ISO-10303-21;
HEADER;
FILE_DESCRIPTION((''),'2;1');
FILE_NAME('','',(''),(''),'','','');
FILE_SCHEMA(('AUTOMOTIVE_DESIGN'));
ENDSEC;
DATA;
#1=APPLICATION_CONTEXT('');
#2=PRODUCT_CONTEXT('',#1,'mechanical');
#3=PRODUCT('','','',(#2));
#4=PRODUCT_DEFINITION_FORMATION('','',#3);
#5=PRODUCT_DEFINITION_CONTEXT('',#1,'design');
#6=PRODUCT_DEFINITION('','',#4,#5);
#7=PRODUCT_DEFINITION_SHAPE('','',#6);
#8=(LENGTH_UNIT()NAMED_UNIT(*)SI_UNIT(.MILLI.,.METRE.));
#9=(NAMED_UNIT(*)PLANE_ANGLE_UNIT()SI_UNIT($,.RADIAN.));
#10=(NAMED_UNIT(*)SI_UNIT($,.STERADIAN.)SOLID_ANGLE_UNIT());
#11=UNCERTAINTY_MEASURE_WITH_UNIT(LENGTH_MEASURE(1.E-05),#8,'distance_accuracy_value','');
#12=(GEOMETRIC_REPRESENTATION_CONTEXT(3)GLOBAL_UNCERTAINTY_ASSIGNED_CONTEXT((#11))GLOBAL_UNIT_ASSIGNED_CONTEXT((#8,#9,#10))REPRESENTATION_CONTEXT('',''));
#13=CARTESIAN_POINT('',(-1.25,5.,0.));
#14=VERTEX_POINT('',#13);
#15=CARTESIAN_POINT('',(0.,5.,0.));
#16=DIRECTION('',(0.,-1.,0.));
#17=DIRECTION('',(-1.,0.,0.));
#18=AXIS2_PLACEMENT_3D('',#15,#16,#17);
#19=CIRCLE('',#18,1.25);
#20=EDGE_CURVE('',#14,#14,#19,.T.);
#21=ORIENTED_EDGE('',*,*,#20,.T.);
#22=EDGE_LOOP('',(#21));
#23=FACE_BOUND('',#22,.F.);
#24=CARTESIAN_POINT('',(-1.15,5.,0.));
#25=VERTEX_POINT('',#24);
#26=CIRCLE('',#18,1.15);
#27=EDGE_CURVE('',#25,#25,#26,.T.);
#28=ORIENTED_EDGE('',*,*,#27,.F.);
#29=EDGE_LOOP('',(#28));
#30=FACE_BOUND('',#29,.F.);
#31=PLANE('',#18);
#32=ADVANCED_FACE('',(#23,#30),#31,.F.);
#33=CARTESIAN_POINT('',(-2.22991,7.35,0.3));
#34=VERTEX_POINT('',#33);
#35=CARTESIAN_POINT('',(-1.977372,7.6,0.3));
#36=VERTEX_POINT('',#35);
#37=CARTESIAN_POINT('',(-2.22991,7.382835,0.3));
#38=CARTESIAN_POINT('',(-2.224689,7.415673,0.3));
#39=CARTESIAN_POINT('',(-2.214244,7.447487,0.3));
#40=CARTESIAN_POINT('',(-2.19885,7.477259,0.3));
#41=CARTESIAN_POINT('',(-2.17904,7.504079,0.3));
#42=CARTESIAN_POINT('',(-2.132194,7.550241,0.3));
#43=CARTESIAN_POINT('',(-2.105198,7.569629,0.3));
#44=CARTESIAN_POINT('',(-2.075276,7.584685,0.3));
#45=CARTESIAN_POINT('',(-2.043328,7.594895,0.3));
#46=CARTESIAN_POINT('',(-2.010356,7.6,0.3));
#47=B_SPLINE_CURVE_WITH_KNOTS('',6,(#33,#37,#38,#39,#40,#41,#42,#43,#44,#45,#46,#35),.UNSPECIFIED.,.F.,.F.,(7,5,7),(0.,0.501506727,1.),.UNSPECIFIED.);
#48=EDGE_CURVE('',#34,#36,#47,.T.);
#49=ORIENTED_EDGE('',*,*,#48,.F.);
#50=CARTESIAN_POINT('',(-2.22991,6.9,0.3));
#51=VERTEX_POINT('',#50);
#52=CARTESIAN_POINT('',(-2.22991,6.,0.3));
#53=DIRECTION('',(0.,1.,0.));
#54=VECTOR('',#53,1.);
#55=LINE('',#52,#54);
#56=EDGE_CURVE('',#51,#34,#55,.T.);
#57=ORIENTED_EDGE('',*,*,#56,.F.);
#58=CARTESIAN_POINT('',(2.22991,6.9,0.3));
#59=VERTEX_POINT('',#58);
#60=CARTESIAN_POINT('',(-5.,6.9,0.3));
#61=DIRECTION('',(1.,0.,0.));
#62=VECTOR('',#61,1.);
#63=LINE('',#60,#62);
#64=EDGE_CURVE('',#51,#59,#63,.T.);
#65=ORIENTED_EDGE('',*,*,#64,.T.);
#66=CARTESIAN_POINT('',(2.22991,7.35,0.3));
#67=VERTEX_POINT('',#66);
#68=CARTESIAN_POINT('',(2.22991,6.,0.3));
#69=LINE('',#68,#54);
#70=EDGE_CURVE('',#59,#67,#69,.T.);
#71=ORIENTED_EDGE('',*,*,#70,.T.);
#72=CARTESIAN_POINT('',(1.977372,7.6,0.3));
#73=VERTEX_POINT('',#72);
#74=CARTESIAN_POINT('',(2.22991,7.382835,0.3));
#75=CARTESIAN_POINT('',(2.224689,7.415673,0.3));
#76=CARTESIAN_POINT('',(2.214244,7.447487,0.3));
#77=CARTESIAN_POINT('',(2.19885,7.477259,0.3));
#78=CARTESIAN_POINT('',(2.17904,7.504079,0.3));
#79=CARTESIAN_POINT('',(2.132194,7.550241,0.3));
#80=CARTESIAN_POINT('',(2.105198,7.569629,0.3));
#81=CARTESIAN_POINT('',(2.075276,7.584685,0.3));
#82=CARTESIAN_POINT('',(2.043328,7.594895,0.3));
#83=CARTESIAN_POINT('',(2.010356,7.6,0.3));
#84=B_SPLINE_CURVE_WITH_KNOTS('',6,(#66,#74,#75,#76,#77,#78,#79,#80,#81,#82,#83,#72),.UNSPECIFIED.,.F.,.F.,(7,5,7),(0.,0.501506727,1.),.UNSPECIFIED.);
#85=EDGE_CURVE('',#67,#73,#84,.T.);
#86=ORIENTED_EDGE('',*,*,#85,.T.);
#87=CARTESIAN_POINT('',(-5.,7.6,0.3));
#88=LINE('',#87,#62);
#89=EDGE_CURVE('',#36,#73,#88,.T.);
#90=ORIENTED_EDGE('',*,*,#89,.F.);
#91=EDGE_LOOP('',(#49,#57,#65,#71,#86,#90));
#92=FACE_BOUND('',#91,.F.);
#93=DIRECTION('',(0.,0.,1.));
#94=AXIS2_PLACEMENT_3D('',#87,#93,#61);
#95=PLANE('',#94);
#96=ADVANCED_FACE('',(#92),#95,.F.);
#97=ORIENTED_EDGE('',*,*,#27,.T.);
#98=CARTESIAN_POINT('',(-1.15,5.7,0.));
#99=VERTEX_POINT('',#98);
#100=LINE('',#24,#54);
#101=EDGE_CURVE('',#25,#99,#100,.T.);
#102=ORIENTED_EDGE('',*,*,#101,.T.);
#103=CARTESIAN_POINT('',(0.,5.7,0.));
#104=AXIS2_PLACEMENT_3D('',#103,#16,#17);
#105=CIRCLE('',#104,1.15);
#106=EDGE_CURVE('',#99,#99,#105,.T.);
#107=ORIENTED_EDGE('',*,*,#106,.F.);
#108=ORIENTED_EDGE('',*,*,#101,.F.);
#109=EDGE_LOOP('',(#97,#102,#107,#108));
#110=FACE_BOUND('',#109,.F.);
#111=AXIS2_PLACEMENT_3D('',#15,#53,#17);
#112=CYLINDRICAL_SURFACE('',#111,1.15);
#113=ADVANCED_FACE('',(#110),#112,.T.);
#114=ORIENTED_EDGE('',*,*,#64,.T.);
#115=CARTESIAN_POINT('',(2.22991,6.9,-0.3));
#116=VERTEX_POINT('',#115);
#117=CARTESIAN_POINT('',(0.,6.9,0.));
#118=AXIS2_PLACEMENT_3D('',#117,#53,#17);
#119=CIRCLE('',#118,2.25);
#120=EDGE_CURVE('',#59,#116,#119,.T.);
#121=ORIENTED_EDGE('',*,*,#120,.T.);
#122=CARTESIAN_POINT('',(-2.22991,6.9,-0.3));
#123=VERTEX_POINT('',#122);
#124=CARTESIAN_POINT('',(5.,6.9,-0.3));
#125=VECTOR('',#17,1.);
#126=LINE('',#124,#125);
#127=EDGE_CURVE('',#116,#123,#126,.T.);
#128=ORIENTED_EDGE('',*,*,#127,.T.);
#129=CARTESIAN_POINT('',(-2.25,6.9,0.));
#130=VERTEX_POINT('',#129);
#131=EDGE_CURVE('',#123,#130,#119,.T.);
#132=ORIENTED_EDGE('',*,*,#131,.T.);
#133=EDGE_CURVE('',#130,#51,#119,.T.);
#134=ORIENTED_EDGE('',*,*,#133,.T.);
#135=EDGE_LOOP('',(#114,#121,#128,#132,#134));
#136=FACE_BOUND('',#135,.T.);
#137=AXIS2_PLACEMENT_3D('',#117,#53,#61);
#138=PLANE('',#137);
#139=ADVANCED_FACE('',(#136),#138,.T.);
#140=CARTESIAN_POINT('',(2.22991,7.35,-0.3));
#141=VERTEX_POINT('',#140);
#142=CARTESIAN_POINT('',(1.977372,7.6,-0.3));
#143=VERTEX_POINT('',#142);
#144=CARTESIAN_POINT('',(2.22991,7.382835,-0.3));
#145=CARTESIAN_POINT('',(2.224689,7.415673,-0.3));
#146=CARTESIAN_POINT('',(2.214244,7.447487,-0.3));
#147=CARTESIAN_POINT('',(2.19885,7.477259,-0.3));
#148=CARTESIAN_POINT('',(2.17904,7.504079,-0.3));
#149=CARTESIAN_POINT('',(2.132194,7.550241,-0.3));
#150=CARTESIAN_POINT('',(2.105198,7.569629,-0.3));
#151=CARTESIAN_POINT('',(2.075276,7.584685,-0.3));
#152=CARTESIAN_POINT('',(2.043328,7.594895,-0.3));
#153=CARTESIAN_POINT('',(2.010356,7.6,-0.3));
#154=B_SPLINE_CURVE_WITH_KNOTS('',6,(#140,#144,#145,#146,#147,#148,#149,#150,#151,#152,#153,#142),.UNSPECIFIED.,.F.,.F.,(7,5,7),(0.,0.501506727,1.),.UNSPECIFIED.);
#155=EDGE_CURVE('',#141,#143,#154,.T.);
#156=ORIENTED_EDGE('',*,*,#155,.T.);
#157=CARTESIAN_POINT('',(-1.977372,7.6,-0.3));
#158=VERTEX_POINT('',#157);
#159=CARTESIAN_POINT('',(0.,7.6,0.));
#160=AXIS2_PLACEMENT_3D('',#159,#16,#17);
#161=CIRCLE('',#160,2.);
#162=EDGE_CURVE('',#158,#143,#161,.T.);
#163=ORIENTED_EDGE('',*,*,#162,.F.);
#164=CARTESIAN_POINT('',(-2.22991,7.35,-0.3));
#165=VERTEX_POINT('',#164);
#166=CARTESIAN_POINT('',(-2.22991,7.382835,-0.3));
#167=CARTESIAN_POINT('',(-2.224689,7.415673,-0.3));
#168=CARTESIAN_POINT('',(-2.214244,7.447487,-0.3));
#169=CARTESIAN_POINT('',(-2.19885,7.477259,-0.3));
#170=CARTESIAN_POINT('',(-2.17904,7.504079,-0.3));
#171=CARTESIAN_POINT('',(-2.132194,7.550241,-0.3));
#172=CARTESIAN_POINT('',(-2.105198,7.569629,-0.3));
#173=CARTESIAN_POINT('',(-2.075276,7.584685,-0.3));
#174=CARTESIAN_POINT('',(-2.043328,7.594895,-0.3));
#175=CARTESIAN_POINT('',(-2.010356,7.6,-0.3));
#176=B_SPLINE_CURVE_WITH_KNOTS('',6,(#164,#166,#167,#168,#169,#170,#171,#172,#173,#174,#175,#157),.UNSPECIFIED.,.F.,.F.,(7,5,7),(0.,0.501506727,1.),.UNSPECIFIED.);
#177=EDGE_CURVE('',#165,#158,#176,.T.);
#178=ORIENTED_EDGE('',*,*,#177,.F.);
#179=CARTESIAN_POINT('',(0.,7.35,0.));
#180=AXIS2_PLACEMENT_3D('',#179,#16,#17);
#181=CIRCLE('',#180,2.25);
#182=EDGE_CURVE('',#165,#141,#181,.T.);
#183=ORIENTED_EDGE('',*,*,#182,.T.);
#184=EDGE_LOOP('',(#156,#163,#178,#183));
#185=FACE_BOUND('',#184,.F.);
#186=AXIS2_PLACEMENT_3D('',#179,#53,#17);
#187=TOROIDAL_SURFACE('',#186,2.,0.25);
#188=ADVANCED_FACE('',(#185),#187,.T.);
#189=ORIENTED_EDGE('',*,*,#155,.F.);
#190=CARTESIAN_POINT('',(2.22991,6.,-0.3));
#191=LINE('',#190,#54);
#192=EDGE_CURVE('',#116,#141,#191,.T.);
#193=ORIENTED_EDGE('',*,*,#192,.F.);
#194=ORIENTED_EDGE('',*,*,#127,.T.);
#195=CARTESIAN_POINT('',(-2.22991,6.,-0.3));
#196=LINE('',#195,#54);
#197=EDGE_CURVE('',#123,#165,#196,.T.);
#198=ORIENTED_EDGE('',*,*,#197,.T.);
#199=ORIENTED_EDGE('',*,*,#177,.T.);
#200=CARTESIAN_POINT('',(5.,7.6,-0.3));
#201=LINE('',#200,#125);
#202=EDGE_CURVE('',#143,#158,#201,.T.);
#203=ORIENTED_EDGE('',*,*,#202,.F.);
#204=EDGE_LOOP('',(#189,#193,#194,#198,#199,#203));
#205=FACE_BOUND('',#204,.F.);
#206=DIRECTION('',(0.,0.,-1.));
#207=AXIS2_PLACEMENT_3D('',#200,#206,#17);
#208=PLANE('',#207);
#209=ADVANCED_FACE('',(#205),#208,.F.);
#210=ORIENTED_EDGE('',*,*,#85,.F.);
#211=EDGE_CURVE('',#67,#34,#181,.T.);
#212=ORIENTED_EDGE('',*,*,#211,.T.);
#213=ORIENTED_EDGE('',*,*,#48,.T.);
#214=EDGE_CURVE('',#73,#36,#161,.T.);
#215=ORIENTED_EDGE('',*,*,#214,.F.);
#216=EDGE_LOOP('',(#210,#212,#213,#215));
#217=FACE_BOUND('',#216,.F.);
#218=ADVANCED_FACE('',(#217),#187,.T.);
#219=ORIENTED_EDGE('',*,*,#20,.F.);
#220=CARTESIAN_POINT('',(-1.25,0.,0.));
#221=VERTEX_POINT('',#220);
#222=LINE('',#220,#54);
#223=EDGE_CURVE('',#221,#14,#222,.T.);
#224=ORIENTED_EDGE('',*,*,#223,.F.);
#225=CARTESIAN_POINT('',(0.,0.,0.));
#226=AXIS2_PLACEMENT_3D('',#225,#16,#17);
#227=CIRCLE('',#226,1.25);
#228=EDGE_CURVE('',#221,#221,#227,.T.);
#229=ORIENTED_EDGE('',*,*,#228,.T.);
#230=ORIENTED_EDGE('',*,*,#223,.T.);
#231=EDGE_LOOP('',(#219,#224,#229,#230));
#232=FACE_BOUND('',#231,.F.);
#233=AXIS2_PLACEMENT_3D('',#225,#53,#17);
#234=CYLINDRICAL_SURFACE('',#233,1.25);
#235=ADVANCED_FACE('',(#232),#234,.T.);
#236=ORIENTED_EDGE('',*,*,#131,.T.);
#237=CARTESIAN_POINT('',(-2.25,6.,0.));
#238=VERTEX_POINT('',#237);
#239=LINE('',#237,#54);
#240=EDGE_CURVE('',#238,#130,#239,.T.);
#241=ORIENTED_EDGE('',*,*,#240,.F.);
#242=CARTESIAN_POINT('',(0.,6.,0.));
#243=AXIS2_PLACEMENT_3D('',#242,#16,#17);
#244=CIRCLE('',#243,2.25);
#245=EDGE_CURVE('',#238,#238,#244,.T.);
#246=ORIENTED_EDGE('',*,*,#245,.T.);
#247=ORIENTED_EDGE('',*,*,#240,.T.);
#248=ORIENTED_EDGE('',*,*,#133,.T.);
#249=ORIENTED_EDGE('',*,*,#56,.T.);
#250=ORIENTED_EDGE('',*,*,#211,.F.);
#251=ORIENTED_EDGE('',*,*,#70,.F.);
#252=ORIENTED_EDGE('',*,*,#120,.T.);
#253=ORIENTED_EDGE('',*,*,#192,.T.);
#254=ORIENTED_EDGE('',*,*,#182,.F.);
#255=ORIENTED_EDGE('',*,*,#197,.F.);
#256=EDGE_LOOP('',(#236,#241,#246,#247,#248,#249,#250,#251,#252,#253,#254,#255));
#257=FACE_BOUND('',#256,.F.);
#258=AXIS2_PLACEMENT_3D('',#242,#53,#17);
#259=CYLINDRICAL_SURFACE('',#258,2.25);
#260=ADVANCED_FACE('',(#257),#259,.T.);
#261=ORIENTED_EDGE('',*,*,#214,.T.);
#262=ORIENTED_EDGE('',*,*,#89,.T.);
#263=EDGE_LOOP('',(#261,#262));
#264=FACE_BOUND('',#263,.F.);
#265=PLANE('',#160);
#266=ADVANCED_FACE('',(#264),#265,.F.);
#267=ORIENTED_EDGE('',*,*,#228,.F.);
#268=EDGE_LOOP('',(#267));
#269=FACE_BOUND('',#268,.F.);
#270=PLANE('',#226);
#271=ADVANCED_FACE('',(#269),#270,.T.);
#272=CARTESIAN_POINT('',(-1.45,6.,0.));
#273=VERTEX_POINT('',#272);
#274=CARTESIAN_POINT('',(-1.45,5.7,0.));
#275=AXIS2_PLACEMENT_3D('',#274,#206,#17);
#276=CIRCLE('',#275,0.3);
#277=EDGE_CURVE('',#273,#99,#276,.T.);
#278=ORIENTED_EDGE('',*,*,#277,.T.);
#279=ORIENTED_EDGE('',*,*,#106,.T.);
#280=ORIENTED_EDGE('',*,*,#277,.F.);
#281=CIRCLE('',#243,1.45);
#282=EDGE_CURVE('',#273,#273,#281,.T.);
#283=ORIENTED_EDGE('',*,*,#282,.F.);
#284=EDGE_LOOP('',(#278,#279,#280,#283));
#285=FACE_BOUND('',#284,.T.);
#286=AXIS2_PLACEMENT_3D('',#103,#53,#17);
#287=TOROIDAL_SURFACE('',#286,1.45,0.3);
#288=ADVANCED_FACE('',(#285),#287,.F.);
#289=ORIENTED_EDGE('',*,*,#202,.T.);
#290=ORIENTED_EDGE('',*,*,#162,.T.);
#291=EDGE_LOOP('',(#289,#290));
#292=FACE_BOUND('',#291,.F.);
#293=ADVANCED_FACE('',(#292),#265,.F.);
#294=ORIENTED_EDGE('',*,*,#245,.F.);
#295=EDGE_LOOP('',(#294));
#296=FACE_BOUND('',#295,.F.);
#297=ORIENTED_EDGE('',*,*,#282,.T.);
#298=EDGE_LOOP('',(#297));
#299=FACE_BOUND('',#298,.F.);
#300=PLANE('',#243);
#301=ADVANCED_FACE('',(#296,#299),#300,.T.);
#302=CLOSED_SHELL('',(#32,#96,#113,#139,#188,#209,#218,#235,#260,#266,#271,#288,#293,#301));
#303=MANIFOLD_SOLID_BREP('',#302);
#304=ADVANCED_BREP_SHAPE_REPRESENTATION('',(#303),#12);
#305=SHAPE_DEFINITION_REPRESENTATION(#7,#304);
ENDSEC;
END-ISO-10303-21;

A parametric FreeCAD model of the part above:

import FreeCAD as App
import Part
import Sketcher
from FreeCAD import Vector


def edges_at(feature, points):
    """Names of the edges that pass closest to the given points."""
    edges = feature.Shape.Edges
    near = lambda p: min(range(len(edges)), key=lambda i: edges[i].distToShape(Part.Vertex(*p))[0])
    return sorted({f"Edge{near(p) + 1}" for p in points})

doc = App.newDocument("Part")
params = doc.addObject("Spreadsheet::Sheet", "Params")
for row, (alias, value) in enumerate([
    ("sketch1_height", "1 mm"),
    ("sketch1_width", "0.1 mm"),
    ("sketch1_height2", "7.6 mm"),
    ("sketch1_height3", "1.6 mm"),
    ("sketch1_width2", "1.25 mm"),
    ("revolution_angle", "360 deg"),
    ("fillet_radius", "0.25 mm"),
    ("sketch2_width", "10 mm"),
    ("sketch2_height", "0.6 mm"),
    ("pocket1_length", "0.7 mm"),
    ("fillet2_radius", "0.3 mm"),
], start=1):
    params.set(f"A{row}", alias)
    params.set(f"B{row}", "=" + value)
    params.setAlias(f"B{row}", alias)

body = doc.addObject("PartDesign::Body", "Body")

sketch1 = body.newObject("Sketcher::SketchObject", "Sketch")
sketch1.AttachmentSupport = (doc.getObject("XY_Plane"), [""])
sketch1.MapMode = "FlatFace"
sketch1.addGeometry(Part.LineSegment(Vector(-1.25, 0, 0), Vector(0, 0, 0)), False)
sketch1.addGeometry(Part.LineSegment(Vector(0, 0, 0), Vector(0, 7.6, 0)), False)
sketch1.addGeometry(Part.LineSegment(Vector(0, 7.6, 0), Vector(-2.25, 7.6, 0)), False)
sketch1.addGeometry(Part.LineSegment(Vector(-2.25, 7.6, 0), Vector(-2.25, 6, 0)), False)
sketch1.addGeometry(Part.LineSegment(Vector(-2.25, 6, 0), Vector(-1.15, 6, 0)), False)
sketch1.addGeometry(Part.LineSegment(Vector(-1.15, 6, 0), Vector(-1.15, 5, 0)), False)
sketch1.addGeometry(Part.LineSegment(Vector(-1.15, 5, 0), Vector(-1.25, 5, 0)), False)
sketch1.addGeometry(Part.LineSegment(Vector(-1.25, 5, 0), Vector(-1.25, 0, 0)), False)
sketch1.addConstraint(Sketcher.Constraint("Coincident", 0, 2, 1, 1))
sketch1.addConstraint(Sketcher.Constraint("Coincident", 1, 2, 2, 1))
sketch1.addConstraint(Sketcher.Constraint("Coincident", 2, 2, 3, 1))
sketch1.addConstraint(Sketcher.Constraint("Coincident", 3, 2, 4, 1))
sketch1.addConstraint(Sketcher.Constraint("Coincident", 4, 2, 5, 1))
sketch1.addConstraint(Sketcher.Constraint("Coincident", 5, 2, 6, 1))
sketch1.addConstraint(Sketcher.Constraint("Coincident", 6, 2, 7, 1))
sketch1.addConstraint(Sketcher.Constraint("Coincident", 7, 2, 0, 1))
sketch1.addConstraint(Sketcher.Constraint("Horizontal", 0))
sketch1.addConstraint(Sketcher.Constraint("Vertical", 1))
sketch1.addConstraint(Sketcher.Constraint("Horizontal", 2))
sketch1.addConstraint(Sketcher.Constraint("Vertical", 3))
sketch1.addConstraint(Sketcher.Constraint("Horizontal", 4))
sketch1.addConstraint(Sketcher.Constraint("Vertical", 5))
sketch1.addConstraint(Sketcher.Constraint("Horizontal", 6))
sketch1.addConstraint(Sketcher.Constraint("Vertical", 7))
sketch1.addConstraint(Sketcher.Constraint("Coincident", 0, 2, -1, 1))
sketch1.addConstraint(Sketcher.Constraint("DistanceY", 5, 2, 5, 1, 1.0))
sketch1.addConstraint(Sketcher.Constraint("DistanceX", 6, 2, 6, 1, 0.1))
sketch1.addConstraint(Sketcher.Constraint("DistanceY", 1, 1, 1, 2, 7.6))
sketch1.addConstraint(Sketcher.Constraint("DistanceY", 3, 2, 3, 1, 1.6))
sketch1.addConstraint(Sketcher.Constraint("DistanceX", 3, 2, 6, 2, 1.0))
sketch1.addConstraint(Sketcher.Constraint("DistanceX", 0, 1, 0, 2, 1.25))
sketch1.setExpression("Constraints[17]", "Params.sketch1_height")
sketch1.setExpression("Constraints[18]", "Params.sketch1_width")
sketch1.setExpression("Constraints[19]", "Params.sketch1_height2")
sketch1.setExpression("Constraints[20]", "Params.sketch1_height3")
sketch1.setExpression("Constraints[22]", "Params.sketch1_width2")
revolution = body.newObject("PartDesign::Revolution", "Revolution")
revolution.Profile = sketch1
revolution.ReferenceAxis = (sketch1, ["V_Axis"])
revolution.setExpression("Angle", "Params.revolution_angle")
doc.recompute()

fillet = body.newObject("PartDesign::Fillet", "Fillet")
fillet.Base = (revolution, edges_at(revolution, [(2.25, 7.6, 0)]))
fillet.setExpression("Radius", "Params.fillet_radius")

sketch2 = body.newObject("Sketcher::SketchObject", "Sketch001")
sketch2.AttachmentSupport = (doc.getObject("XZ_Plane"), [""])
sketch2.MapMode = "FlatFace"
sketch2.AttachmentOffset = App.Placement(Vector(0, 0, -7.6), App.Rotation())
sketch2.addGeometry(Part.LineSegment(Vector(5, 0.3, 0), Vector(5, -0.3, 0)), False)
sketch2.addGeometry(Part.LineSegment(Vector(5, -0.3, 0), Vector(-5, -0.3, 0)), False)
sketch2.addGeometry(Part.LineSegment(Vector(-5, -0.3, 0), Vector(-5, 0.3, 0)), False)
sketch2.addGeometry(Part.LineSegment(Vector(-5, 0.3, 0), Vector(5, 0.3, 0)), False)
sketch2.addConstraint(Sketcher.Constraint("Coincident", 0, 2, 1, 1))
sketch2.addConstraint(Sketcher.Constraint("Coincident", 1, 2, 2, 1))
sketch2.addConstraint(Sketcher.Constraint("Coincident", 2, 2, 3, 1))
sketch2.addConstraint(Sketcher.Constraint("Coincident", 3, 2, 0, 1))
sketch2.addConstraint(Sketcher.Constraint("Vertical", 0))
sketch2.addConstraint(Sketcher.Constraint("Horizontal", 1))
sketch2.addConstraint(Sketcher.Constraint("Vertical", 2))
sketch2.addConstraint(Sketcher.Constraint("Horizontal", 3))
sketch2.addConstraint(Sketcher.Constraint("Symmetric", 0, 2, 2, 2, -1, 1))
sketch2.addConstraint(Sketcher.Constraint("DistanceX", 1, 2, 1, 1, 10.0))
sketch2.addConstraint(Sketcher.Constraint("DistanceY", 0, 2, 0, 1, 0.6))
sketch2.setExpression("Constraints[9]", "Params.sketch2_width")
sketch2.setExpression("Constraints[10]", "Params.sketch2_height")
pocket1 = body.newObject("PartDesign::Pocket", "Pocket")
pocket1.Profile = sketch2
pocket1.setExpression("Length", "Params.pocket1_length")
pocket1.Reversed = True
doc.recompute()

fillet2 = body.newObject("PartDesign::Fillet", "Fillet001")
fillet2.Base = (pocket1, edges_at(pocket1, [(1.15, 6, 0)]))
fillet2.setExpression("Radius", "Params.fillet2_radius")

doc.recompute()
